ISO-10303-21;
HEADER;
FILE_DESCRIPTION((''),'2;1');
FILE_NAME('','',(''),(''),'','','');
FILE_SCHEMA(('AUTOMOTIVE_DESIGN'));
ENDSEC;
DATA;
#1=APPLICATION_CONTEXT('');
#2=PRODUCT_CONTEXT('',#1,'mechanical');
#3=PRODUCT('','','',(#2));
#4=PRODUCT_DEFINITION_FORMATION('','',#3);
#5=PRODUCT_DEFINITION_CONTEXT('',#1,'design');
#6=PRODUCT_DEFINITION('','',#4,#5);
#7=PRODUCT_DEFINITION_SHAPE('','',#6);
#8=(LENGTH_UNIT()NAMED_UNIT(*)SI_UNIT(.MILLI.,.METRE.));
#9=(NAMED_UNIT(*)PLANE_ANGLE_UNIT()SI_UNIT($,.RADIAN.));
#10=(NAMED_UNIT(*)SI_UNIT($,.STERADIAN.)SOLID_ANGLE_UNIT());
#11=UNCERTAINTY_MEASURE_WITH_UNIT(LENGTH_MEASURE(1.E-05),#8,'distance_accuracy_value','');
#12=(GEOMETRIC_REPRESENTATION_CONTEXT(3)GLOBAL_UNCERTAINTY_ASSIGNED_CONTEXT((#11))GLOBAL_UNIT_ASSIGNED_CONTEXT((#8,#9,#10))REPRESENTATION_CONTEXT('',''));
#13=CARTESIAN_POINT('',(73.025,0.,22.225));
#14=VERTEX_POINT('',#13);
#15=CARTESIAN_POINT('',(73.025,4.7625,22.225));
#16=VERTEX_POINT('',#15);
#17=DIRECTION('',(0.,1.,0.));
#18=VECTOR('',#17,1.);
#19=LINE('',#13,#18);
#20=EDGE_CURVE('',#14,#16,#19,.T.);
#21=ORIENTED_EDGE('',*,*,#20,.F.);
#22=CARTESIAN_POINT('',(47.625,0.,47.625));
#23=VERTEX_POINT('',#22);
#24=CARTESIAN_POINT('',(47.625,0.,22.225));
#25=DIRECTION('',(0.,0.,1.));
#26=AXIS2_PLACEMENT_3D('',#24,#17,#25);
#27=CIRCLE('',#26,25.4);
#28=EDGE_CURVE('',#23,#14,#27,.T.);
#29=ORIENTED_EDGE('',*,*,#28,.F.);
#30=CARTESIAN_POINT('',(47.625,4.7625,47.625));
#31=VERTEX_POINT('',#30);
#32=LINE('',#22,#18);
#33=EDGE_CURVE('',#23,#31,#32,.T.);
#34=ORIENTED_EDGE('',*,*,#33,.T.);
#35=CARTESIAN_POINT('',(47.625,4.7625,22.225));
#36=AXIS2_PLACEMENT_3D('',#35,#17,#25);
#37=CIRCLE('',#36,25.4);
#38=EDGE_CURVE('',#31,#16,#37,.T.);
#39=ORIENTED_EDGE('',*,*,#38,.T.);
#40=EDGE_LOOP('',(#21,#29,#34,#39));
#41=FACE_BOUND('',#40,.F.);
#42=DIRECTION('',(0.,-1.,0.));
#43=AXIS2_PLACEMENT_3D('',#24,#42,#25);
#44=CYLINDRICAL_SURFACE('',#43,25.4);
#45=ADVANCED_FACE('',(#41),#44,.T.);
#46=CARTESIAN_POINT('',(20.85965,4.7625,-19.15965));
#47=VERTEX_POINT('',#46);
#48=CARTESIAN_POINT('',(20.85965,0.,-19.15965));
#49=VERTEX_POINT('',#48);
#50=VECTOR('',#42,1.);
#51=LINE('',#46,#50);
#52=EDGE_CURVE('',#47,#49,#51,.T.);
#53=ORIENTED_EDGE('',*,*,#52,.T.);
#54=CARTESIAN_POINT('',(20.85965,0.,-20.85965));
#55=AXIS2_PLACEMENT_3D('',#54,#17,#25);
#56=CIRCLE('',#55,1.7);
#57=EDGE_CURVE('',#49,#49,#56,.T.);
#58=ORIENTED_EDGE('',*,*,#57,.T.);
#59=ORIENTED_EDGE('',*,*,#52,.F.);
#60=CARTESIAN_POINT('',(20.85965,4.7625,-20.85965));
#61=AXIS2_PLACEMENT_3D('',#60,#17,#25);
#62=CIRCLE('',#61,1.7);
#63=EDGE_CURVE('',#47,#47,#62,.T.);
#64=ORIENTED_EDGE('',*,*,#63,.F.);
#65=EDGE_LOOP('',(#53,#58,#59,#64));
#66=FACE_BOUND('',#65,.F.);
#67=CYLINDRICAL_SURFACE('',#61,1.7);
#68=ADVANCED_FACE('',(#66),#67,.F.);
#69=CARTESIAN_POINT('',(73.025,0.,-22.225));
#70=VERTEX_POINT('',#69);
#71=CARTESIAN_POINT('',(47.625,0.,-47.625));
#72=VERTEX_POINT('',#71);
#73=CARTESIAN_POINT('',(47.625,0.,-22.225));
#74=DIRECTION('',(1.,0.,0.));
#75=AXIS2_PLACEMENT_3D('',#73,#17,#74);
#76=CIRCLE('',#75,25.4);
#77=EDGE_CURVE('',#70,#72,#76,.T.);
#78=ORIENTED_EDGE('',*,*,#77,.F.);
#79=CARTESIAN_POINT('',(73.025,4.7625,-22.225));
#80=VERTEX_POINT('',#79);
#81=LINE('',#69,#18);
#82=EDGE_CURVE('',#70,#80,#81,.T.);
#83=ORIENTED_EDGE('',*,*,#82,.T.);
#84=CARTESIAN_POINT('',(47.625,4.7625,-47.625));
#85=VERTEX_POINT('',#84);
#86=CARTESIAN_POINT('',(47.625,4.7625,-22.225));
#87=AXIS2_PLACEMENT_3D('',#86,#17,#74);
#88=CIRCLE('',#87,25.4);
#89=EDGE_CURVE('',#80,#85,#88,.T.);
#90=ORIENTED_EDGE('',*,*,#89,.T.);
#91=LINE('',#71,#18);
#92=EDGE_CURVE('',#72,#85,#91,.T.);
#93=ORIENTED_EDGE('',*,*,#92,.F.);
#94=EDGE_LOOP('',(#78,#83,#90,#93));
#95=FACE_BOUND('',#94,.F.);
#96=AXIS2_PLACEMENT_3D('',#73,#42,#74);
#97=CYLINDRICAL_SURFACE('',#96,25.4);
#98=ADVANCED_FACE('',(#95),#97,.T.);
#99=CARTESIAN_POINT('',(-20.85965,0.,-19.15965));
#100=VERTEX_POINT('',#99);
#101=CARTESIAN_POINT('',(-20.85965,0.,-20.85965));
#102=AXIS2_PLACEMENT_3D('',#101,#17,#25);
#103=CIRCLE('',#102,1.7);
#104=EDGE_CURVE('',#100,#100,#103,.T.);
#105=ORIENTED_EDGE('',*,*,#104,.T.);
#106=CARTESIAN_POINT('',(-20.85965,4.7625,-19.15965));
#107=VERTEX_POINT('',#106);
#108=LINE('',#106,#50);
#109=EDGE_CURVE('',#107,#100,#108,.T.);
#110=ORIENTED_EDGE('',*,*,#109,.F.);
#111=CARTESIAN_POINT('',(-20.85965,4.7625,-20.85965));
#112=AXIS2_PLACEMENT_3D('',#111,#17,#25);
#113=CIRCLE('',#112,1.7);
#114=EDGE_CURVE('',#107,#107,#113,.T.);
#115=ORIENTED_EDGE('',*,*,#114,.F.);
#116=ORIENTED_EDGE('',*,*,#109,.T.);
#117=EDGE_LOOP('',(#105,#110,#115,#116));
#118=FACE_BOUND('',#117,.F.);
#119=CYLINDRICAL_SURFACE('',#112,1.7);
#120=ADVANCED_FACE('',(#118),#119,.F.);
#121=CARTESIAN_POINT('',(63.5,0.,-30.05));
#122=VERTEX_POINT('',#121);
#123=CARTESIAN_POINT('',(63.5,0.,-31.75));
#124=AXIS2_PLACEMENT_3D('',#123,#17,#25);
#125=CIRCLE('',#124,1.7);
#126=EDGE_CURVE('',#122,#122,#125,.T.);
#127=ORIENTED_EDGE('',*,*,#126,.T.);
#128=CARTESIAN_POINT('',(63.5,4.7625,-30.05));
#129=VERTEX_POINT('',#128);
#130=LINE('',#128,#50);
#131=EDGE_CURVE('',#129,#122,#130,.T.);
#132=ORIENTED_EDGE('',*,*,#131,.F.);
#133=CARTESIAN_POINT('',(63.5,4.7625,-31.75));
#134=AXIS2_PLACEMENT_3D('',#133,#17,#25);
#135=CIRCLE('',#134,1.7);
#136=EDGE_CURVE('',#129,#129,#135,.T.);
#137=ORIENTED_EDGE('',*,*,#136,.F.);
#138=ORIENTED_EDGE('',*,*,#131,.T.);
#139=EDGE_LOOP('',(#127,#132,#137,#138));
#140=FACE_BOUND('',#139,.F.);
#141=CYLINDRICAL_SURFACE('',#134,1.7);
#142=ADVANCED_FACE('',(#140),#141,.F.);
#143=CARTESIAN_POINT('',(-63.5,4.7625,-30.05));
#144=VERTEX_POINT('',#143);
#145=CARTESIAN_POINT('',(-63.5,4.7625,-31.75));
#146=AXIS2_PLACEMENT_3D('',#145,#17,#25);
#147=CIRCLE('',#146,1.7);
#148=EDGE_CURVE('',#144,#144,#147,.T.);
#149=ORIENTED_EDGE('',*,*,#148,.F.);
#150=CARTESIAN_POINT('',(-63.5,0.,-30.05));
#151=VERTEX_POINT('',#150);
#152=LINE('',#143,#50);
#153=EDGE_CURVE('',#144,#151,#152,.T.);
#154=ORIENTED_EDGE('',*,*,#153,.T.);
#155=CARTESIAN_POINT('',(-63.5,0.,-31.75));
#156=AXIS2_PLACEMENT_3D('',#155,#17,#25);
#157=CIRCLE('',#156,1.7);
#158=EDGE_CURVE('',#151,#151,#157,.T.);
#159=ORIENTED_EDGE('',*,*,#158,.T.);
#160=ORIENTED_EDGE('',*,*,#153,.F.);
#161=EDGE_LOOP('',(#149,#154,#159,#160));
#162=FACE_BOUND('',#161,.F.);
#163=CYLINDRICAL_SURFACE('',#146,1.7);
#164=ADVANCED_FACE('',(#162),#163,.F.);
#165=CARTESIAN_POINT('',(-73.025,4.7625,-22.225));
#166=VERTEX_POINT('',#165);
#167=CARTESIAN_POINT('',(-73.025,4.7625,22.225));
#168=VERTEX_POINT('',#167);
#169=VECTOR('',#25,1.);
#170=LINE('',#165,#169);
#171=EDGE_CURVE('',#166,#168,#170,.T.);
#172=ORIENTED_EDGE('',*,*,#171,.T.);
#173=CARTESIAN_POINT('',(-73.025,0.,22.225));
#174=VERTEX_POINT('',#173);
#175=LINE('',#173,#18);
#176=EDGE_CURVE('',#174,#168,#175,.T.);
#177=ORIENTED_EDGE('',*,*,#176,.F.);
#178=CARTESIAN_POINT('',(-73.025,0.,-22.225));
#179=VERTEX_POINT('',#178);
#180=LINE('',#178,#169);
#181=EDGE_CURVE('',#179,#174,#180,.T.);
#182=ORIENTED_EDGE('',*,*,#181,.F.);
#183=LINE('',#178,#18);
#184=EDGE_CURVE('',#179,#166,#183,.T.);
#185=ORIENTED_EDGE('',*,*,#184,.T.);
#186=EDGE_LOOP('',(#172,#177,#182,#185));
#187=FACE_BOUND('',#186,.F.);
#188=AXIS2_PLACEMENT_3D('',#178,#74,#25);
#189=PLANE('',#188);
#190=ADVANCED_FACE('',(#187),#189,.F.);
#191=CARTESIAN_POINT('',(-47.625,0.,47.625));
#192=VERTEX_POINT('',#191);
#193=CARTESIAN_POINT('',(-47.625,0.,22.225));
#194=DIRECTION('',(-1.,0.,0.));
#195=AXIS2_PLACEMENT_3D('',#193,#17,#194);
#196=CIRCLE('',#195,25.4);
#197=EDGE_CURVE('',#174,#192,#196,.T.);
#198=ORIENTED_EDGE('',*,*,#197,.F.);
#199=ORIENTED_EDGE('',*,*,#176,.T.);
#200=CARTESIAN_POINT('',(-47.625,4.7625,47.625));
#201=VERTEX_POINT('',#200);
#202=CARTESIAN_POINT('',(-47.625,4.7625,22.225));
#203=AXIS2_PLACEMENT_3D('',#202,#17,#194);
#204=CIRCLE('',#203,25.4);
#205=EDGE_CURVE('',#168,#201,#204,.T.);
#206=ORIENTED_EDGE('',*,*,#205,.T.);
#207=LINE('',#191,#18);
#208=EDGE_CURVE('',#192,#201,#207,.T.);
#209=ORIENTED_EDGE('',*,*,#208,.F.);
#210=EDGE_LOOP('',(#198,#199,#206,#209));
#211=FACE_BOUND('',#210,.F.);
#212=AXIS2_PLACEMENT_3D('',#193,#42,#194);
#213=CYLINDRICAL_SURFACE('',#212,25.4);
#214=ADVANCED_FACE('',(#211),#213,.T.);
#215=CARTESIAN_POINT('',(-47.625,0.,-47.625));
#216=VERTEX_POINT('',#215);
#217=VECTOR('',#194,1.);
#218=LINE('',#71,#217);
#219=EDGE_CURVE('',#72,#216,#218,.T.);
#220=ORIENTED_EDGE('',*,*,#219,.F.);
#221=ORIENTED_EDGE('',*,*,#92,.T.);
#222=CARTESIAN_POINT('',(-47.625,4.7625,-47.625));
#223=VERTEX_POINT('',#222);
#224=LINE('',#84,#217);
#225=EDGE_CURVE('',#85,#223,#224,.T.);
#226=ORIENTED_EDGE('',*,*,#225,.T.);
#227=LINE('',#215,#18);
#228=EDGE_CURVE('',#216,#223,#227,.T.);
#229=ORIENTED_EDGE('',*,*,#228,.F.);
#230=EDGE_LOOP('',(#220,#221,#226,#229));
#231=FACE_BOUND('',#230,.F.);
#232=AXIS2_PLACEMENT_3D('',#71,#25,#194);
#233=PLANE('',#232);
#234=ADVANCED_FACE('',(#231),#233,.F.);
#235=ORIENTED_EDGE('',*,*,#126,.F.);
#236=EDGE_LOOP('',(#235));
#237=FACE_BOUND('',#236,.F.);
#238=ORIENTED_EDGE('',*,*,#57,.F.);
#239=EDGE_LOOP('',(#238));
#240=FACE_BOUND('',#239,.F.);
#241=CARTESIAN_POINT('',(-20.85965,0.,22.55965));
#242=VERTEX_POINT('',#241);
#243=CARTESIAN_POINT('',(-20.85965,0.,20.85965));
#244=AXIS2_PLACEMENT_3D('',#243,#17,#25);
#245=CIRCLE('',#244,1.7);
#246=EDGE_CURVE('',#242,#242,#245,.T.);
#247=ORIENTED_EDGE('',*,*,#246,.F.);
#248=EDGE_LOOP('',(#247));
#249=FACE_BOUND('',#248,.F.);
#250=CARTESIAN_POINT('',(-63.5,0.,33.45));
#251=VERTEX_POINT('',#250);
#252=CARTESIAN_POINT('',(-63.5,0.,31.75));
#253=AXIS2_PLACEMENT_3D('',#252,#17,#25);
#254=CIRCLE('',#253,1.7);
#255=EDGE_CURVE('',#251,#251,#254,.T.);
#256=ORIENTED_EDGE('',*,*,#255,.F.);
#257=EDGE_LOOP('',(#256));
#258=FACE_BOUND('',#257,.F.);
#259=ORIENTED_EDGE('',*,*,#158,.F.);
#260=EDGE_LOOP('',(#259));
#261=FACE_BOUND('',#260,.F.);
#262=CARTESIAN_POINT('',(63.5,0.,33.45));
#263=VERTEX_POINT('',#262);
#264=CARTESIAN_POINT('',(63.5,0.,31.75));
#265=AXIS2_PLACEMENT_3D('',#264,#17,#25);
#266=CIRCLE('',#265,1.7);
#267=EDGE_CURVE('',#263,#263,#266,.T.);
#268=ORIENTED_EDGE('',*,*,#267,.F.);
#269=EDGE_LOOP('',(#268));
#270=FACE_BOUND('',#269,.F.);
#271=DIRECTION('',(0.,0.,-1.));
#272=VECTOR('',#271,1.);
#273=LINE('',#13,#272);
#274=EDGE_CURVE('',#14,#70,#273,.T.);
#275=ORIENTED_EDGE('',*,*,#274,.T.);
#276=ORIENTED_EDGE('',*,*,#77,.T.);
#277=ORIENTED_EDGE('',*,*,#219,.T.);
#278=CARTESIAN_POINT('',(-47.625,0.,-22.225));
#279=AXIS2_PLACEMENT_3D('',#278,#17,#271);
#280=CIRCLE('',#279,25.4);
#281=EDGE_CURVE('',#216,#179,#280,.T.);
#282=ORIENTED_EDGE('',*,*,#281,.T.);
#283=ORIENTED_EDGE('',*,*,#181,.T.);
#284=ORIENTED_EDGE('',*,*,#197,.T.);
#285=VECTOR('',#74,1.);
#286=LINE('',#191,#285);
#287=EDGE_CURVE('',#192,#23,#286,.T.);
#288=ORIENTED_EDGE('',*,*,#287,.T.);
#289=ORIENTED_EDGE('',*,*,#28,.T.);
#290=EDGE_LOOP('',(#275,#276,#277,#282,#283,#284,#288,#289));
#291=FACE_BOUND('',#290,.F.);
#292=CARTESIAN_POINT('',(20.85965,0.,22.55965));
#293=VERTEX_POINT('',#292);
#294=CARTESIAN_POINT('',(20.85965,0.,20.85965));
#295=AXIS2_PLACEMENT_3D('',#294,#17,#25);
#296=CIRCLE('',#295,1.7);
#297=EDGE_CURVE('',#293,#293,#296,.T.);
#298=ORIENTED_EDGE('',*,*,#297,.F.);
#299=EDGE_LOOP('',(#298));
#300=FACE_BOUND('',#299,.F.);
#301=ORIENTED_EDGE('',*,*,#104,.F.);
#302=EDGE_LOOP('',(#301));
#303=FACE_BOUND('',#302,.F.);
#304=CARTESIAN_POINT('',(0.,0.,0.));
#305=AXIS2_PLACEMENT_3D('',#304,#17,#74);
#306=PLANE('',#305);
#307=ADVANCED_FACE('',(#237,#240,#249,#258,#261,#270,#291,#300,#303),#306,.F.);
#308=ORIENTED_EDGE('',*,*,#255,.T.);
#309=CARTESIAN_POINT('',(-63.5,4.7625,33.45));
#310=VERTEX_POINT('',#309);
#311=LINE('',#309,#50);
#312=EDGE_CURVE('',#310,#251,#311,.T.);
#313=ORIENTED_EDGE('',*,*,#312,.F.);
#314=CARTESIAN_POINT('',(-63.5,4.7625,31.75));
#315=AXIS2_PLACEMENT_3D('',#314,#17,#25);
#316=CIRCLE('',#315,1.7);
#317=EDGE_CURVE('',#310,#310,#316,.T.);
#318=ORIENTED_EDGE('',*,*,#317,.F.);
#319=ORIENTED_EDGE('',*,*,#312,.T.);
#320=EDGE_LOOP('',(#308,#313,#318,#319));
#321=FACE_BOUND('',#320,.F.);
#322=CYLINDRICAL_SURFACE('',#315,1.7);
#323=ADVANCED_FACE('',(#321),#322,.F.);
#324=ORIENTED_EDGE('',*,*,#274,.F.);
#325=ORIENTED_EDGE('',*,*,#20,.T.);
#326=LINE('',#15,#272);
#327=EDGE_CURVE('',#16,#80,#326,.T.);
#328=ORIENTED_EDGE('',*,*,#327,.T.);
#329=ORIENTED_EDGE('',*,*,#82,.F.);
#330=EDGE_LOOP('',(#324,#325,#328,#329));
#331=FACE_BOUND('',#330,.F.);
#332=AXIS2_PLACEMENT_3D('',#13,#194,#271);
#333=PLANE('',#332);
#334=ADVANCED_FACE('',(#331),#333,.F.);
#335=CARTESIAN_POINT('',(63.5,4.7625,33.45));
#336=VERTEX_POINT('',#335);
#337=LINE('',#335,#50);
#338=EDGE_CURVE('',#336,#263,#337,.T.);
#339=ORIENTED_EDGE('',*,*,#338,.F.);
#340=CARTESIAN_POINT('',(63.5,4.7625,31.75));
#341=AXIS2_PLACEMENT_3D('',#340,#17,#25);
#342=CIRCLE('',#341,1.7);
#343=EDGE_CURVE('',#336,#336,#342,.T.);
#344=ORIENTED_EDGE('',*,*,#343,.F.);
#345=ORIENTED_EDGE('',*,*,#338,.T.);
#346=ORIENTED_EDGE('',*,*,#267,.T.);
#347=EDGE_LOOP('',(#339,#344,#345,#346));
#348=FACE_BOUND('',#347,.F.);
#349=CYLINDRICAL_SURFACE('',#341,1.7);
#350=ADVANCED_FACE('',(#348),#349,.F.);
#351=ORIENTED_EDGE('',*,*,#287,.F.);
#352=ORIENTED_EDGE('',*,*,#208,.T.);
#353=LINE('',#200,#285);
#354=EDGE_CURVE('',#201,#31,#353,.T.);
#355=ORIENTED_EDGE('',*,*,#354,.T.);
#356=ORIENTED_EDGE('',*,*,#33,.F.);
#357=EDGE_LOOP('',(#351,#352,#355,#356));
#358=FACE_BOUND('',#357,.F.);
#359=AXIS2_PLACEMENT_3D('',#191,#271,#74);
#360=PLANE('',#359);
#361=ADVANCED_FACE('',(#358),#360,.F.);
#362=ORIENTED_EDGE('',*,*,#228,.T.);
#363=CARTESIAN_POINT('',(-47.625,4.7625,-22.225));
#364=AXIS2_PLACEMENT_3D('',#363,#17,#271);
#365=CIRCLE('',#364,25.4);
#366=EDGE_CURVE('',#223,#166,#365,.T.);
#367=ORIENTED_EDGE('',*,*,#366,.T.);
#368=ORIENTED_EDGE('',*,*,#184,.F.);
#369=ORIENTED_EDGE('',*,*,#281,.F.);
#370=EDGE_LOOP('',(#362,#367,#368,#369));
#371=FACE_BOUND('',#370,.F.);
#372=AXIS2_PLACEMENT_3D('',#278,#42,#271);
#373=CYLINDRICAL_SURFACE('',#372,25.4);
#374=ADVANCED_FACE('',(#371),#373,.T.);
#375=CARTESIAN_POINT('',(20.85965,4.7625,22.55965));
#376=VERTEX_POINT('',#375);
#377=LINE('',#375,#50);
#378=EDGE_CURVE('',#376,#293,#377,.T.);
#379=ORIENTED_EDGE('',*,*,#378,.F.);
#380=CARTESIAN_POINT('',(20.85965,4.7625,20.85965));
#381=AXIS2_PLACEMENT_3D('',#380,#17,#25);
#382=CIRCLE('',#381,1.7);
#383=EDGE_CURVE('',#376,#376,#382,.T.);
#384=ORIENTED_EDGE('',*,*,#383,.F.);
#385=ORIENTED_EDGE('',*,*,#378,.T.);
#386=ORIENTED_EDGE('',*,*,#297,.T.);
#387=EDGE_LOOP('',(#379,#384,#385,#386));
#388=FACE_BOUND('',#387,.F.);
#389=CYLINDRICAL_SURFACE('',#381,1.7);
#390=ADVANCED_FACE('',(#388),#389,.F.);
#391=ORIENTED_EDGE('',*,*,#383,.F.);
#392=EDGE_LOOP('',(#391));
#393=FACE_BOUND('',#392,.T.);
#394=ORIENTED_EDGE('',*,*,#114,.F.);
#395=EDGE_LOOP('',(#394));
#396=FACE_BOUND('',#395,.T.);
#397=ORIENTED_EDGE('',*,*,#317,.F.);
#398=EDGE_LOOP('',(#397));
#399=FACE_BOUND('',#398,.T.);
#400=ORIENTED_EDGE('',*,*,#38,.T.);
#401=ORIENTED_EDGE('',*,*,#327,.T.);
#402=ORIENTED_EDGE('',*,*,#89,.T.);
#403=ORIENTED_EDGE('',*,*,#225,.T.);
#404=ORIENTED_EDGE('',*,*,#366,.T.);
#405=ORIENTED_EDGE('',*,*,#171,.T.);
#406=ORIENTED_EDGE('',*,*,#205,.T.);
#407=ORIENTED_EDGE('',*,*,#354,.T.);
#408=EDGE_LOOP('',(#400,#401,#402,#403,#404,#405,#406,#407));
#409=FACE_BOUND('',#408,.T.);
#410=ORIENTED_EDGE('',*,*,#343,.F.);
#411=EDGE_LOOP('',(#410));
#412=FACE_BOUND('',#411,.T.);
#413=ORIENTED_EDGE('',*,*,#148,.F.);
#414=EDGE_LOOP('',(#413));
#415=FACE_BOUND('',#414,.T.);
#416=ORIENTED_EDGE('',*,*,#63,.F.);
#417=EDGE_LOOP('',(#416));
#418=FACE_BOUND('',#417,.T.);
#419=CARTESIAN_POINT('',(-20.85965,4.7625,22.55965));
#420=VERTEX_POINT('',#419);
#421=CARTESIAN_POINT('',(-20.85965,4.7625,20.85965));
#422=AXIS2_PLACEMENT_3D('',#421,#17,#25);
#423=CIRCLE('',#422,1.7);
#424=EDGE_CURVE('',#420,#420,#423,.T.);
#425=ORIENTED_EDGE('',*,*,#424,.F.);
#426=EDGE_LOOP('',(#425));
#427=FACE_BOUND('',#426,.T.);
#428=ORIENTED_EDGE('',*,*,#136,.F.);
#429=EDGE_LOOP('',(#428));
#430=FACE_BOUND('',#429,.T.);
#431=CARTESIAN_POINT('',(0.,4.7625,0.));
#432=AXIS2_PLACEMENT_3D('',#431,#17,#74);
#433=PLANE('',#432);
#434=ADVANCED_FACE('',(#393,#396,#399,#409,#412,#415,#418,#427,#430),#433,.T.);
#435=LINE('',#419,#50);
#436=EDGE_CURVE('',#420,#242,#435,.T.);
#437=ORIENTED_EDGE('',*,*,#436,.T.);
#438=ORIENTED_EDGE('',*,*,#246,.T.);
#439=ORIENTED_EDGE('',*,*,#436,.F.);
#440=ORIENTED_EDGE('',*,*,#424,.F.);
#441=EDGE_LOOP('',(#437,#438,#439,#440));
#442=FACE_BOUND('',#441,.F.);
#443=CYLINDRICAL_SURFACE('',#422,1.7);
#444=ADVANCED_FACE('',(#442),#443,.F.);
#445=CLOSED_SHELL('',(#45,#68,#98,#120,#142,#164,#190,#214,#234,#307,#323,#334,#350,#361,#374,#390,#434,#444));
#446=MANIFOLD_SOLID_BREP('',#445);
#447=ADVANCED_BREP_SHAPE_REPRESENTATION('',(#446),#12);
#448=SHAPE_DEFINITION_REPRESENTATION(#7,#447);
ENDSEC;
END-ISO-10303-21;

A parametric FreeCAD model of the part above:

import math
import FreeCAD as App
import Part
import Sketcher

V = App.Vector
Q = App.Units.Quantity

doc = App.newDocument("Part")
body = doc.addObject("PartDesign::Body", "Body")

# Sketch on XZ plane
sketch1 = body.newObject("Sketcher::SketchObject", "Sketch")
sketch1.AttachmentSupport = (doc.getObject("XZ_Plane"), [""])
sketch1.MapMode = "FlatFace"
sketch1.addGeometry([
    Part.LineSegment(V(-48, 48, 0), V(48, 48, 0)),  # 0
    Part.ArcOfCircle(Part.Circle(V(48, 22, 0), V(0, 0, 1), 25), math.radians(0), math.radians(90)),  # 1
    Part.LineSegment(V(73, 22, 0), V(73, -22, 0)),  # 2
    Part.ArcOfCircle(Part.Circle(V(48, -22, 0), V(0, 0, 1), 25), math.radians(-90), math.radians(0)),  # 3
    Part.LineSegment(V(48, -48, 0), V(-48, -48, 0)),  # 4
    Part.ArcOfCircle(Part.Circle(V(-48, -22, 0), V(0, 0, 1), 25), math.radians(180), math.radians(270)),  # 5
    Part.LineSegment(V(-73, -22, 0), V(-73, 22, 0)),  # 6
    Part.ArcOfCircle(Part.Circle(V(-48, 22, 0), V(0, 0, 1), 25), math.radians(90), math.radians(180)),  # 7
], False)
sketch1.addConstraint([
    Sketcher.Constraint("Tangent", 0, 2, 1, 2),
    Sketcher.Constraint("Tangent", 1, 1, 2, 1),
    Sketcher.Constraint("Tangent", 2, 2, 3, 2),
    Sketcher.Constraint("Tangent", 3, 1, 4, 1),
    Sketcher.Constraint("Tangent", 4, 2, 5, 2),
    Sketcher.Constraint("Tangent", 5, 1, 6, 1),
    Sketcher.Constraint("Tangent", 6, 2, 7, 2),
    Sketcher.Constraint("Tangent", 7, 1, 0, 1),
    Sketcher.Constraint("Horizontal", 0),
    Sketcher.Constraint("Vertical", 2),
    Sketcher.Constraint("Horizontal", 4),
    Sketcher.Constraint("Vertical", 6),
    Sketcher.Constraint("Equal", 1, 3),
    Sketcher.Constraint("Equal", 3, 5),
    Sketcher.Constraint("Equal", 5, 7),
    Sketcher.Constraint("Symmetric", 1, 3, 5, 3, -1, 1),
    Sketcher.Constraint("Radius", 1, Q("1 in")),
    Sketcher.Constraint("DistanceX", 0, 1, 0, 2, Q("3.75 in")),
    Sketcher.Constraint("DistanceY", 2, 2, 2, 1, Q("1.75 in")),
])
pad1 = body.newObject("PartDesign::Pad", "Pad")
pad1.Profile = sketch1
pad1.Length = Q("0.1875 in")
pad1.Reversed = True

# Sketch on XZ plane
sketch2 = body.newObject("Sketcher::SketchObject", "Sketch001")
sketch2.AttachmentSupport = (doc.getObject("XZ_Plane"), [""])
sketch2.MapMode = "FlatFace"
sketch2.AttachmentOffset = App.Placement(V(0, 0, -0.1875 * 25.4), App.Rotation())
sketch2.addGeometry([
    Part.Circle(V(-63.5, 31.8, 0), V(0, 0, 1), 1.7),
    Part.Circle(V(-63.5, -31.8, 0), V(0, 0, 1), 1.7),
    Part.Circle(V(63.5, -31.8, 0), V(0, 0, 1), 1.7),
    Part.Circle(V(63.5, 31.8, 0), V(0, 0, 1), 1.7),
], False)
sketch2.addConstraint([
    Sketcher.Constraint("Equal", 0, 1),
    Sketcher.Constraint("Equal", 1, 2),
    Sketcher.Constraint("Equal", 2, 3),
    Sketcher.Constraint("Symmetric", 0, 3, 2, 3, -1, 1),
    Sketcher.Constraint("Symmetric", 1, 3, 3, 3, -1, 1),
    Sketcher.Constraint("Symmetric", 1, 3, 2, 3, -2),
    Sketcher.Constraint("DistanceX", 1, 3, 2, 3, Q("5 in")),
    Sketcher.Constraint("DistanceY", 1, 3, 0, 3, Q("2.5 in")),
    Sketcher.Constraint("Diameter", 0, 3.4),
])
pocket1 = body.newObject("PartDesign::Pocket", "Pocket")
pocket1.Profile = sketch2
pocket1.Type = "ThroughAll"
pocket1.Reversed = True

# Sketch on XZ plane
sketch3 = body.newObject("Sketcher::SketchObject", "Sketch002")
sketch3.AttachmentSupport = (doc.getObject("XZ_Plane"), [""])
sketch3.MapMode = "FlatFace"
sketch3.AttachmentOffset = App.Placement(V(0, 0, -0.1875 * 25.4), App.Rotation())
sketch3.addGeometry([
    Part.Circle(V(20.9, -20.9, 0), V(0, 0, 1), 1.7),
    Part.Circle(V(-20.9, -20.9, 0), V(0, 0, 1), 1.7),
    Part.Circle(V(-20.9, 20.9, 0), V(0, 0, 1), 1.7),
    Part.Circle(V(20.9, 20.9, 0), V(0, 0, 1), 1.7),
], False)
sketch3.addConstraint([
    Sketcher.Constraint("Equal", 0, 1),
    Sketcher.Constraint("Equal", 1, 2),
    Sketcher.Constraint("Equal", 2, 3),
    Sketcher.Constraint("Symmetric", 0, 3, 2, 3, -1, 1),
    Sketcher.Constraint("Symmetric", 1, 3, 3, 3, -1, 1),
    Sketcher.Constraint("Symmetric", 0, 3, 1, 3, -2),
    Sketcher.Constraint("Diameter", 0, 3.4),
    Sketcher.Constraint("DistanceX", 1, 3, 0, 3, 41.7193),
    Sketcher.Constraint("DistanceY", 1, 3, 2, 3, 41.7193),
])
pocket2 = body.newObject("PartDesign::Pocket", "Pocket001")
pocket2.Profile = sketch3
pocket2.Type = "ThroughAll"
pocket2.Reversed = True

doc.recompute()
